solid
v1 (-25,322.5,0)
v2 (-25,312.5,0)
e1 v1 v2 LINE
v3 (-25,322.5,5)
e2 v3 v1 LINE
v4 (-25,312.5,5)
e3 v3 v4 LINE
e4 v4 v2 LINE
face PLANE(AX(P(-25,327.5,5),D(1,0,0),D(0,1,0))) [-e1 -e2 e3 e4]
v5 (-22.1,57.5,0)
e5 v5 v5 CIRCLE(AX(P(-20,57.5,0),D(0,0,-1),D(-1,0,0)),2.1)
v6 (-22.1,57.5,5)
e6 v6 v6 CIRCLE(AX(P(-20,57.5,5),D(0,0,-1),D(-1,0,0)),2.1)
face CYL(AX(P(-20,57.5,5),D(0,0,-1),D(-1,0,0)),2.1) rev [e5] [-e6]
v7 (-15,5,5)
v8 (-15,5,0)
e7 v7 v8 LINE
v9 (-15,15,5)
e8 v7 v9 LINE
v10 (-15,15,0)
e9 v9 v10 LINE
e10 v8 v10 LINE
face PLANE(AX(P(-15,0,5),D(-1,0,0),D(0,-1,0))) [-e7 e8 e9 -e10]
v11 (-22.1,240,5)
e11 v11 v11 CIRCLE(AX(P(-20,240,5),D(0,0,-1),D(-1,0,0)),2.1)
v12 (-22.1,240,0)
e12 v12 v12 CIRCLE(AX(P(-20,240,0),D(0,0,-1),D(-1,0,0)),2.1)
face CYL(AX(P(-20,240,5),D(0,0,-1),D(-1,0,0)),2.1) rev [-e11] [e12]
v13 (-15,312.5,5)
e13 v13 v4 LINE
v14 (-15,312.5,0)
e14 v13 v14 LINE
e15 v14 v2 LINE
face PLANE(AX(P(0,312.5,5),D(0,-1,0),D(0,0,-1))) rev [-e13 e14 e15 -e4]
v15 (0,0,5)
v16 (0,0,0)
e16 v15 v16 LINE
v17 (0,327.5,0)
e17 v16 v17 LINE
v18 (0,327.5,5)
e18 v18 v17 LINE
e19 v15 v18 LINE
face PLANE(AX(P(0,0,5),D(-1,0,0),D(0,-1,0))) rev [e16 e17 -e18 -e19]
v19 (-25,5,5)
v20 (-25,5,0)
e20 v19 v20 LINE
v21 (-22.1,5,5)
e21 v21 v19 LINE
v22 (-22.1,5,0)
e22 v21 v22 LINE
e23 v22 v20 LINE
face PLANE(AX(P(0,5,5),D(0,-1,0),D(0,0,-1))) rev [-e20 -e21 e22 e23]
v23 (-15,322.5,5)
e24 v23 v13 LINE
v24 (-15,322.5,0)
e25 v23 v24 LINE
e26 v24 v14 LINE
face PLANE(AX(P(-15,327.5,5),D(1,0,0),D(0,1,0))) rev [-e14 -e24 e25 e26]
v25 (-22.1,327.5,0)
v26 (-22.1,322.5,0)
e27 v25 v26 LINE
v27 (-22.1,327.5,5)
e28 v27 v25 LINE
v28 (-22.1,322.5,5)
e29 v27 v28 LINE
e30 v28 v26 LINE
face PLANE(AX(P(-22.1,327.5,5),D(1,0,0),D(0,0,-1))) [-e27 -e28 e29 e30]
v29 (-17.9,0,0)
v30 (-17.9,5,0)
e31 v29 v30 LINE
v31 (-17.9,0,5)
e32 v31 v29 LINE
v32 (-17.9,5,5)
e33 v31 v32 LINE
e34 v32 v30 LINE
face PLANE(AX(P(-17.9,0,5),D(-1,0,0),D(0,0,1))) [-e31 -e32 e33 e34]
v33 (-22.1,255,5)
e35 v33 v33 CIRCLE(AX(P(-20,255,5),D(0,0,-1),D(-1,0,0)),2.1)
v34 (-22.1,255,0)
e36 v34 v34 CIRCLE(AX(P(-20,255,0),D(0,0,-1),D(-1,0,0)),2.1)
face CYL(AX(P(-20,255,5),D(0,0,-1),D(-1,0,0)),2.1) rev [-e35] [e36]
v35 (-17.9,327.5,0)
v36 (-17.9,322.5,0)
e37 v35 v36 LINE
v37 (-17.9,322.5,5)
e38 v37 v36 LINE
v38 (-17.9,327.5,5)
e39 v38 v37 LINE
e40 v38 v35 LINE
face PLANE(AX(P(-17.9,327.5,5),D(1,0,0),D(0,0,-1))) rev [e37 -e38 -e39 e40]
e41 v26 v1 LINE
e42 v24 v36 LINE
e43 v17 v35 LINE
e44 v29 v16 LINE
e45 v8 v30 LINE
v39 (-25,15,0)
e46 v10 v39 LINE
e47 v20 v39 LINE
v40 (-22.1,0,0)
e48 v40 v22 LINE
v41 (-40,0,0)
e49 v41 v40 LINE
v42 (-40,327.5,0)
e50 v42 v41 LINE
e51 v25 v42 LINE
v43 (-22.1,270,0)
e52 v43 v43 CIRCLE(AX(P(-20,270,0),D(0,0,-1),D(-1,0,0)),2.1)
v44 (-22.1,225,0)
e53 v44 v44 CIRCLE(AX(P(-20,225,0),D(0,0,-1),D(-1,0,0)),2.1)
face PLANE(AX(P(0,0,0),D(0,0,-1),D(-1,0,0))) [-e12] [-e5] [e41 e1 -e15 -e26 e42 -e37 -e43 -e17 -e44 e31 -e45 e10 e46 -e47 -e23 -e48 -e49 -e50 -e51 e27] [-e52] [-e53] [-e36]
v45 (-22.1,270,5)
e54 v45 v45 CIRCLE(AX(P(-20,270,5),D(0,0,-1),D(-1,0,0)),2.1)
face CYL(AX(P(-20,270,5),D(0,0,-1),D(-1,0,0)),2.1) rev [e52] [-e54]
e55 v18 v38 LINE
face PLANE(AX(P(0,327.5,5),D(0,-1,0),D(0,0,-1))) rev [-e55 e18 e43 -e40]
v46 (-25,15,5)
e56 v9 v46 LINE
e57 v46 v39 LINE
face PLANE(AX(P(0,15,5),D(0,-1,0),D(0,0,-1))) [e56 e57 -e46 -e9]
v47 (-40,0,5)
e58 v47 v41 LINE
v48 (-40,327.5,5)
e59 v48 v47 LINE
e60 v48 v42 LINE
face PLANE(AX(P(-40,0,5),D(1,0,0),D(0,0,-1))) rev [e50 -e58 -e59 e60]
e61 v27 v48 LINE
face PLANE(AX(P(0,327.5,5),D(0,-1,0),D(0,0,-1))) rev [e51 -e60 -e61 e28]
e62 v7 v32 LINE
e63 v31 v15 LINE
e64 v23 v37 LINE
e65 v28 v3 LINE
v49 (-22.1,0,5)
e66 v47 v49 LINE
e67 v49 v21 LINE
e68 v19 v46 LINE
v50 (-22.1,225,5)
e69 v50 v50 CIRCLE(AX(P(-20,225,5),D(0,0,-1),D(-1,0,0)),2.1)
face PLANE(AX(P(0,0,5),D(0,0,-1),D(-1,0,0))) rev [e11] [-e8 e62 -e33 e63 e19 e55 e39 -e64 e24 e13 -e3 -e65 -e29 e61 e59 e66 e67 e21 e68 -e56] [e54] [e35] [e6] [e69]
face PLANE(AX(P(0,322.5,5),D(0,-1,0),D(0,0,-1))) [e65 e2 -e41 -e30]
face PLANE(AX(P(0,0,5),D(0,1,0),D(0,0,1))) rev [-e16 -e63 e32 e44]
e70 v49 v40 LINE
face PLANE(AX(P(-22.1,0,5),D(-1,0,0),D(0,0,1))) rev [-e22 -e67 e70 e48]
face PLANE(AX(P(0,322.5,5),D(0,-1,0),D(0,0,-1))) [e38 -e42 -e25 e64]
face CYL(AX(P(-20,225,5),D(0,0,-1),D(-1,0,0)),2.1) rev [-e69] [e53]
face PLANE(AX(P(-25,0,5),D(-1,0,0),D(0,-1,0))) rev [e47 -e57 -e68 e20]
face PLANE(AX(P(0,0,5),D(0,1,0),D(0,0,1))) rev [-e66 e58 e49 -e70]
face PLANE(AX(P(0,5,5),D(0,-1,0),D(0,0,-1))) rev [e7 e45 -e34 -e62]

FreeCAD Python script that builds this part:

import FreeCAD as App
import Part
import Sketcher

V = App.Vector


def add_polygon(sketch, points):
    """Adds a closed chain of lines whose ends are joined by coincident constraints."""
    first, n = sketch.GeometryCount, len(points)
    for a, b in zip(points, points[1:] + points[:1]):
        sketch.addGeometry(Part.LineSegment(App.Vector(*a, 0), App.Vector(*b, 0)), False)
    for i in range(n):
        sketch.addConstraint(Sketcher.Constraint("Coincident", first + i, 2, first + (i + 1) % n, 1))

doc = App.newDocument("Part")
params = doc.addObject("Spreadsheet::Sheet", "Params")
for row, (alias, value) in enumerate([
    ("sketch1_width", "40 mm"),
    ("sketch1_height", "327.5 mm"),
    ("pad1_length", "5 mm"),
    ("sketch2_diameter", "4.2 mm"),
    ("pocket1_length", "5 mm"),
    ("sketch3_width", "10 mm"),
    ("sketch3_height", "5 mm"),
    ("sketch3_width2", "4.2 mm"),
    ("pocket2_length", "5 mm"),
], start=1):
    params.set(f"A{row}", alias)
    params.set(f"B{row}", "=" + value)
    params.setAlias(f"B{row}", alias)

body = doc.addObject("PartDesign::Body", "Body")

# Sketch on XY plane
sketch1 = doc.addObject("Sketcher::SketchObject", "Sketch")
body.addObject(sketch1)
sketch1.AttachmentSupport = (doc.XY_Plane, [""])
sketch1.MapMode = "FlatFace"
add_polygon(sketch1, [(-40, 328), (-40, 0), (0, 0), (0, 328)])  # lines 0-3
sketch1.addConstraint(Sketcher.Constraint("Vertical", 0))
sketch1.addConstraint(Sketcher.Constraint("Horizontal", 1))
sketch1.addConstraint(Sketcher.Constraint("Vertical", 2))
sketch1.addConstraint(Sketcher.Constraint("Horizontal", 3))
sketch1.addConstraint(Sketcher.Constraint("Coincident", 1, 2, -1, 1))
sketch1.addConstraint(Sketcher.Constraint("DistanceX", 1, 1, 1, 2, 40.0))
sketch1.addConstraint(Sketcher.Constraint("DistanceY", 0, 2, 0, 1, 327.5))
sketch1.setExpression("Constraints[9]", "Params.sketch1_width")
sketch1.setExpression("Constraints[10]", "Params.sketch1_height")
pad1 = doc.addObject("PartDesign::Pad", "Pad")
body.addObject(pad1)
pad1.Profile = sketch1
pad1.setExpression("Length", "Params.pad1_length")

# Sketch on XY plane
sketch2 = doc.addObject("Sketcher::SketchObject", "Sketch001")
body.addObject(sketch2)
sketch2.AttachmentSupport = (doc.XY_Plane, [""])
sketch2.MapMode = "FlatFace"
sketch2.addGeometry(Part.Circle(V(-20, 57.5, 0), V(0, 0, 1), 2.1), False)
sketch2.addGeometry(Part.Circle(V(-20, 270, 0), V(0, 0, 1), 2.1), False)
sketch2.addGeometry(Part.Circle(V(-20, 255, 0), V(0, 0, 1), 2.1), False)
sketch2.addGeometry(Part.Circle(V(-20, 240, 0), V(0, 0, 1), 2.1), False)
sketch2.addGeometry(Part.Circle(V(-20, 225, 0), V(0, 0, 1), 2.1), False)
sketch2.addConstraint(Sketcher.Constraint("Equal", 0, 1))
sketch2.addConstraint(Sketcher.Constraint("Equal", 1, 2))
sketch2.addConstraint(Sketcher.Constraint("Equal", 2, 3))
sketch2.addConstraint(Sketcher.Constraint("Equal", 3, 4))
sketch2.addConstraint(Sketcher.Constraint("Vertical", 0, 3, 1, 3))
sketch2.addConstraint(Sketcher.Constraint("Vertical", 1, 3, 2, 3))
sketch2.addConstraint(Sketcher.Constraint("Vertical", 2, 3, 3, 3))
sketch2.addConstraint(Sketcher.Constraint("Vertical", 3, 3, 4, 3))
sketch2.addConstraint(Sketcher.Constraint("Diameter", 0, 4.2))
sketch2.addConstraint(Sketcher.Constraint("DistanceX", 0, 3, -1, 1, 20.0))
sketch2.addConstraint(Sketcher.Constraint("DistanceY", -1, 1, 1, 3, 270.0))
sketch2.addConstraint(Sketcher.Constraint("DistanceY", -1, 1, 2, 3, 255.0))
sketch2.addConstraint(Sketcher.Constraint("DistanceY", -1, 1, 3, 3, 240.0))
sketch2.addConstraint(Sketcher.Constraint("DistanceY", -1, 1, 4, 3, 225.0))
sketch2.addConstraint(Sketcher.Constraint("DistanceY", -1, 1, 0, 3, 57.5))
sketch2.setExpression("Constraints[8]", "Params.sketch2_diameter")
pocket1 = doc.addObject("PartDesign::Pocket", "Pocket")
body.addObject(pocket1)
pocket1.Profile = sketch2
pocket1.setExpression("Length", "Params.pocket1_length")
pocket1.Reversed = True

# Sketch on XY plane
sketch3 = doc.addObject("Sketcher::SketchObject", "Sketch002")
body.addObject(sketch3)
sketch3.AttachmentSupport = (doc.XY_Plane, [""])
sketch3.MapMode = "FlatFace"
add_polygon(sketch3, [(-17.9, 0), (-22.1, 0), (-22.1, 5), (-25, 5), (-25, 15), (-15, 15), (-15, 5), (-17.9, 5)])  # lines 0-7
sketch3.addConstraint(Sketcher.Constraint("Horizontal", 0))
sketch3.addConstraint(Sketcher.Constraint("Vertical", 1))
sketch3.addConstraint(Sketcher.Constraint("Horizontal", 2))
sketch3.addConstraint(Sketcher.Constraint("Vertical", 3))
sketch3.addConstraint(Sketcher.Constraint("Horizontal", 4))
sketch3.addConstraint(Sketcher.Constraint("Vertical", 5))
sketch3.addConstraint(Sketcher.Constraint("Horizontal", 6))
sketch3.addConstraint(Sketcher.Constraint("Vertical", 7))
sketch3.addConstraint(Sketcher.Constraint("PointOnObject", 0, 2, -1))
sketch3.addConstraint(Sketcher.Constraint("Horizontal", 2, 2, 5, 2))
sketch3.addConstraint(Sketcher.Constraint("Equal", 2, 6))
sketch3.addConstraint(Sketcher.Constraint("Equal", 4, 3))
sketch3.addConstraint(Sketcher.Constraint("DistanceX", 4, 1, 4, 2, 10.0))
sketch3.addConstraint(Sketcher.Constraint("DistanceY", 1, 1, 1, 2, 5.0))
sketch3.addConstraint(Sketcher.Constraint("DistanceX", 0, 2, 0, 1, 4.2))
sketch3.addConstraint(Sketcher.Constraint("DistanceX", 2, 2, -1, 1, 25.0))
sketch3.setExpression("Constraints[20]", "Params.sketch3_width")
sketch3.setExpression("Constraints[21]", "Params.sketch3_height")
sketch3.setExpression("Constraints[22]", "Params.sketch3_width2")
pocket2 = doc.addObject("PartDesign::Pocket", "Pocket001")
body.addObject(pocket2)
pocket2.Profile = sketch3
pocket2.setExpression("Length", "Params.pocket2_length")
pocket2.Reversed = True
doc.recompute()

datumplane = doc.addObject("PartDesign::Plane", "DatumPlane")
body.addObject(datumplane)
datumplane.AttachmentSupport = (doc.XZ_Plane, [""])
datumplane.MapMode = "FlatFace"
datumplane.AttachmentOffset = App.Placement(V(0, 0, -163.75), App.Rotation())
mirrored = doc.addObject("PartDesign::Mirrored", "Mirrored")
body.addObject(mirrored)
mirrored.Originals = [pocket2]
mirrored.MirrorPlane = (datumplane, [""])
body.Tip = mirrored

doc.recompute()
